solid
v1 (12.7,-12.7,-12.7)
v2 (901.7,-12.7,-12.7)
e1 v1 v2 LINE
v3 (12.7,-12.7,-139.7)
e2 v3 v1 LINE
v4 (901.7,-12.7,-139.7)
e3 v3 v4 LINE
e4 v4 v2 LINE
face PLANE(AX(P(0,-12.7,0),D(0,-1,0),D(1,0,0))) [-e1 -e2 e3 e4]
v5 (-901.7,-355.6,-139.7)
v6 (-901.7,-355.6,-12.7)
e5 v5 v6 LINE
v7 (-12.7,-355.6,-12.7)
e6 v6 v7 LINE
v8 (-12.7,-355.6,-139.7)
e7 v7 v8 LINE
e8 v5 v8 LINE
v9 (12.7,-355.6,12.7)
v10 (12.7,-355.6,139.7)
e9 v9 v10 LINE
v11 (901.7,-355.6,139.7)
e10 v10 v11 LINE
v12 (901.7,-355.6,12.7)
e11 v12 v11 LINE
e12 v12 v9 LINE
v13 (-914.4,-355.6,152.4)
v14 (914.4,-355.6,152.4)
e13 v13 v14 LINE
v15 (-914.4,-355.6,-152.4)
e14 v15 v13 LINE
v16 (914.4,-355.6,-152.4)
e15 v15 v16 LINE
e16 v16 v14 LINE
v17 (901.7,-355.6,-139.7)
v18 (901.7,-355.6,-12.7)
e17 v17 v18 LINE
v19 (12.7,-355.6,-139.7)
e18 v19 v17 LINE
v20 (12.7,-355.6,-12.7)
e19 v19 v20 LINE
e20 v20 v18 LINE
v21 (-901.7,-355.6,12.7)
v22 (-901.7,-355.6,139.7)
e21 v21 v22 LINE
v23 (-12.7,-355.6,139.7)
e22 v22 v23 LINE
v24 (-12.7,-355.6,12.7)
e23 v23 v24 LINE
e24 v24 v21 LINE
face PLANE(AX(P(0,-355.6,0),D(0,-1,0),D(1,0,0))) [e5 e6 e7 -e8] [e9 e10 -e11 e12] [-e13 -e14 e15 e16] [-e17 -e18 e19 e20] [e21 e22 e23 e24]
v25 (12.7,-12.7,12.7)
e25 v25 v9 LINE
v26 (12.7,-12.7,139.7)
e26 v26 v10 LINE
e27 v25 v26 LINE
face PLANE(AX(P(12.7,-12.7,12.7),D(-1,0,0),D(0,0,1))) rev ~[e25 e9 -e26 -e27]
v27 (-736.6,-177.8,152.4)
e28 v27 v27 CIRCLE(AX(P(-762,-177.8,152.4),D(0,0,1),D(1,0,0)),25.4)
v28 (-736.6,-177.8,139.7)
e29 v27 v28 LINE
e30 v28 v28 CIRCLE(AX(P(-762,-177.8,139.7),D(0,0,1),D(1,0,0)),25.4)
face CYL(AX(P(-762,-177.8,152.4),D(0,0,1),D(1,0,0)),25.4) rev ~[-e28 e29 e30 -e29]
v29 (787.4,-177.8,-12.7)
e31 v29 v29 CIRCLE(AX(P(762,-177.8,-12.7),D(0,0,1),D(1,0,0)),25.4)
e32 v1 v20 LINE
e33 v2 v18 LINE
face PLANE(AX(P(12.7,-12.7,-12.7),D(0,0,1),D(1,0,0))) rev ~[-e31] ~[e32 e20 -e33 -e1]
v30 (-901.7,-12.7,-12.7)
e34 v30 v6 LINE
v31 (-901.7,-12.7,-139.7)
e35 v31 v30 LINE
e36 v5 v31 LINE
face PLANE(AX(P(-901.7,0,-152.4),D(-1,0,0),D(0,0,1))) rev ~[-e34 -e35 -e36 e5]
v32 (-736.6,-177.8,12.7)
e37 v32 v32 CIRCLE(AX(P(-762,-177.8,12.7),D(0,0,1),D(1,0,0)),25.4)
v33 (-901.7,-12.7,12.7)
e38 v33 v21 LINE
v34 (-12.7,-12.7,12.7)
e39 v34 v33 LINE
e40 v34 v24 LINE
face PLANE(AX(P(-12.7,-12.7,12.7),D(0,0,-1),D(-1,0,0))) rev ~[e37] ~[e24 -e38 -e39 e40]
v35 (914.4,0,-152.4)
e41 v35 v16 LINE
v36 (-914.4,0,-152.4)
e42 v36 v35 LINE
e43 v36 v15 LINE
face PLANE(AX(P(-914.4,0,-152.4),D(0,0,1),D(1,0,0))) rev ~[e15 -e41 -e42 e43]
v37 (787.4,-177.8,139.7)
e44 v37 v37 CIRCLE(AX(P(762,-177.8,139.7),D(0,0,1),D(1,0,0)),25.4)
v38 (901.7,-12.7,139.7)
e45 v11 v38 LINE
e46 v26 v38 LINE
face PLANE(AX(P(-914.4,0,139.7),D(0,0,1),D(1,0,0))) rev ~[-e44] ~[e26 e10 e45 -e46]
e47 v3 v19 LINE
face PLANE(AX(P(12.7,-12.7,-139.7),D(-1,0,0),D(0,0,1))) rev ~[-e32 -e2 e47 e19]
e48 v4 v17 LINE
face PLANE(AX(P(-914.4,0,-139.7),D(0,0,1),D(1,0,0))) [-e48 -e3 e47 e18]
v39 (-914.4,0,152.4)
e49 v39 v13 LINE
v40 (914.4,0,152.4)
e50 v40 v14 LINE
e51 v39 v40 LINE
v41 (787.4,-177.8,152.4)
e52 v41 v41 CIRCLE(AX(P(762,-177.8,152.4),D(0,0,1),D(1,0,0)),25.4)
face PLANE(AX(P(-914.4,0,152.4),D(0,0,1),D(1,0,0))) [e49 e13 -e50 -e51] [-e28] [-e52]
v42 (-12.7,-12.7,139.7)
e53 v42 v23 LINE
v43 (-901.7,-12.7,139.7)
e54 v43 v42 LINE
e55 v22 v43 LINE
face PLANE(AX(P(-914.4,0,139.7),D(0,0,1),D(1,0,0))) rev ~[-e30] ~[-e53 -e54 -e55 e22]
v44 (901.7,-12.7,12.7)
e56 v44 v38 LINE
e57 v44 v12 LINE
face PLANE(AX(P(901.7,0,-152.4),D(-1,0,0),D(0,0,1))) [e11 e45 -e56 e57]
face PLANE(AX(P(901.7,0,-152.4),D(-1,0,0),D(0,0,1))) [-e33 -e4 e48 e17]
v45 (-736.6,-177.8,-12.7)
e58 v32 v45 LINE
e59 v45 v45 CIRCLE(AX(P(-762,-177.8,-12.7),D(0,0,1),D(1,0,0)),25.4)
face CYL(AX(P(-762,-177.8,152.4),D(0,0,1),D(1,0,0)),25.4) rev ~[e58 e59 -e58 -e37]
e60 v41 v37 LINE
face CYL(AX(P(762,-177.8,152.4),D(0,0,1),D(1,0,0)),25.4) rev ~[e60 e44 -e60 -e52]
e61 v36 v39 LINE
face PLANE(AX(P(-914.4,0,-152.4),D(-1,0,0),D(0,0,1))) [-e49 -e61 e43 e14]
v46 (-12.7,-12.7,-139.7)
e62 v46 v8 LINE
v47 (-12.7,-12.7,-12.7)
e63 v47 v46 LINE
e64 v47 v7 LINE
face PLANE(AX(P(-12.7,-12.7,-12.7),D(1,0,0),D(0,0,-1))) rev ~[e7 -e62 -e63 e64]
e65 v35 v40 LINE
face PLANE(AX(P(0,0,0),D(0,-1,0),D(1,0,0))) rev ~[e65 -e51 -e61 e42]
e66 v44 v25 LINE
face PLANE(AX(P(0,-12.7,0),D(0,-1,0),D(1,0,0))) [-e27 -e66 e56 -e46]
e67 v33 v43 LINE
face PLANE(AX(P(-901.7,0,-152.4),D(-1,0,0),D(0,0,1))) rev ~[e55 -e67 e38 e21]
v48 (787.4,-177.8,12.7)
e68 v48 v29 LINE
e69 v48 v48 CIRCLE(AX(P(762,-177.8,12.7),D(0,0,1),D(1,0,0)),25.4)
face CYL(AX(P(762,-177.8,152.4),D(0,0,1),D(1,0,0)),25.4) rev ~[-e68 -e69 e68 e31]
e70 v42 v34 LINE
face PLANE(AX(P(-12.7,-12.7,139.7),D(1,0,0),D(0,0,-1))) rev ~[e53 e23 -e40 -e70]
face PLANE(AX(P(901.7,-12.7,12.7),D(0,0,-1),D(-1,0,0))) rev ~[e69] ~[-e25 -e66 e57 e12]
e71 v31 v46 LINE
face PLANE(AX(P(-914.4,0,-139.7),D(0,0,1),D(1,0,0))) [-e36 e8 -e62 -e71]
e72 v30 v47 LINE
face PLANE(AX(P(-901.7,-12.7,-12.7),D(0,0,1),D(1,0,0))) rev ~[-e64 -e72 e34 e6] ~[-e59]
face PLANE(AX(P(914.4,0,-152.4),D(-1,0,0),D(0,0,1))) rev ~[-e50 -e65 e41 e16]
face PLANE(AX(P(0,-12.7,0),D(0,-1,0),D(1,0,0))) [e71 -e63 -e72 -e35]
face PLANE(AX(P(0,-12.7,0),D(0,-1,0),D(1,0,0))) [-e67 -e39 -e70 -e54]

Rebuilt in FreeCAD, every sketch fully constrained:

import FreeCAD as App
import Part
import Sketcher

V = App.Vector
Q = App.Units.Quantity


def faces_at(feature, points):
    """Names of the faces that lie closest to the given points."""
    faces = feature.Shape.Faces
    near = lambda p: min(range(len(faces)), key=lambda i: faces[i].distToShape(Part.Vertex(*p))[0])
    return sorted({f"Face{near(p) + 1}" for p in points})

doc = App.newDocument("Part")
params = doc.addObject("Spreadsheet::Sheet", "Params")
for row, (alias, value) in enumerate([
    ("sketch1_width", "72 in"),
    ("sketch1_height", "12 in"),
    ("pad1_length", "14 in"),
    ("thickness_wall", "0.5 in"),
    ("sketch2_width", "1 in"),
    ("sketch2_width2", "35 in"),
    ("sketch2_height", "5 in"),
    ("pad2_length", "13.5 in"),
    ("sketch3_diameter", "2 in"),
    ("pocket1_length", "7.5 in"),
], start=1):
    params.set(f"A{row}", alias)
    params.set(f"B{row}", "=" + value)
    params.setAlias(f"B{row}", alias)

body = doc.addObject("PartDesign::Body", "Body")

# Sketch on XZ plane
sketch1 = body.newObject("Sketcher::SketchObject", "Sketch")
sketch1.AttachmentSupport = (doc.getObject("XZ_Plane"), [""])
sketch1.MapMode = "FlatFace"
sketch1.addGeometry([
    Part.LineSegment(V(-914, 152, 0), V(-914, -152, 0)),
    Part.LineSegment(V(-914, -152, 0), V(914, -152, 0)),
    Part.LineSegment(V(914, -152, 0), V(914, 152, 0)),
    Part.LineSegment(V(914, 152, 0), V(-914, 152, 0)),
], False)
sketch1.addConstraint([
    Sketcher.Constraint("Coincident", 0, 2, 1, 1),
    Sketcher.Constraint("Coincident", 1, 2, 2, 1),
    Sketcher.Constraint("Coincident", 2, 2, 3, 1),
    Sketcher.Constraint("Coincident", 3, 2, 0, 1),
    Sketcher.Constraint("Vertical", 0),
    Sketcher.Constraint("Horizontal", 1),
    Sketcher.Constraint("Vertical", 2),
    Sketcher.Constraint("Horizontal", 3),
    Sketcher.Constraint("Symmetric", 0, 2, 2, 2, -1, 1),
    Sketcher.Constraint("DistanceX", 1, 1, 1, 2, Q("72 in")),
    Sketcher.Constraint("DistanceY", 0, 2, 0, 1, Q("12 in")),
])
sketch1.setExpression("Constraints[9]", "Params.sketch1_width")
sketch1.setExpression("Constraints[10]", "Params.sketch1_height")
pad1 = body.newObject("PartDesign::Pad", "Pad")
pad1.Profile = sketch1
pad1.setExpression("Length", "Params.pad1_length")
doc.recompute()

thickness = body.newObject("PartDesign::Thickness", "Thickness")
thickness.Base = (pad1, faces_at(pad1, [(0, -355.6, 0)]))
thickness.setExpression("Value", "Params.thickness_wall")
thickness.Reversed = True
thickness.Join = "Arc"

# Sketch on XZ plane
sketch2 = body.newObject("Sketcher::SketchObject", "Sketch001")
sketch2.AttachmentSupport = (doc.getObject("XZ_Plane"), [""])
sketch2.MapMode = "FlatFace"
sketch2.AttachmentOffset = App.Placement(V(0, 0, 0.5 * 25.4), App.Rotation())
sketch2.addGeometry([
    Part.LineSegment(V(13, 13, 0), V(13, 140, 0)),  # 0
    Part.LineSegment(V(13, 140, 0), V(-13, 140, 0)),  # 1
    Part.LineSegment(V(-13, 140, 0), V(-13, 13, 0)),  # 2
    Part.LineSegment(V(-13, 13, 0), V(-902, 13, 0)),  # 3
    Part.LineSegment(V(-902, 13, 0), V(-902, -13, 0)),  # 4
    Part.LineSegment(V(-902, -13, 0), V(-13, -13, 0)),  # 5
    Part.LineSegment(V(-13, -13, 0), V(-13, -140, 0)),  # 6
    Part.LineSegment(V(-13, -140, 0), V(13, -140, 0)),  # 7
    Part.LineSegment(V(13, -140, 0), V(13, -13, 0)),  # 8
    Part.LineSegment(V(13, -13, 0), V(902, -13, 0)),  # 9
    Part.LineSegment(V(902, -13, 0), V(902, 13, 0)),  # 10
    Part.LineSegment(V(902, 13, 0), V(13, 13, 0)),  # 11
], False)
sketch2.addConstraint([
    Sketcher.Constraint("Coincident", 0, 2, 1, 1),
    Sketcher.Constraint("Coincident", 1, 2, 2, 1),
    Sketcher.Constraint("Coincident", 2, 2, 3, 1),
    Sketcher.Constraint("Coincident", 3, 2, 4, 1),
    Sketcher.Constraint("Coincident", 4, 2, 5, 1),
    Sketcher.Constraint("Coincident", 5, 2, 6, 1),
    Sketcher.Constraint("Coincident", 6, 2, 7, 1),
    Sketcher.Constraint("Coincident", 7, 2, 8, 1),
    Sketcher.Constraint("Coincident", 8, 2, 9, 1),
    Sketcher.Constraint("Coincident", 9, 2, 10, 1),
    Sketcher.Constraint("Coincident", 10, 2, 11, 1),
    Sketcher.Constraint("Coincident", 11, 2, 0, 1),
    Sketcher.Constraint("Vertical", 0),
    Sketcher.Constraint("Horizontal", 1),
    Sketcher.Constraint("Vertical", 2),
    Sketcher.Constraint("Horizontal", 3),
    Sketcher.Constraint("Vertical", 4),
    Sketcher.Constraint("Horizontal", 5),
    Sketcher.Constraint("Vertical", 6),
    Sketcher.Constraint("Horizontal", 7),
    Sketcher.Constraint("Vertical", 8),
    Sketcher.Constraint("Horizontal", 9),
    Sketcher.Constraint("Vertical", 10),
    Sketcher.Constraint("Horizontal", 11),
    Sketcher.Constraint("Symmetric", 0, 2, 6, 2, -1, 1),
    Sketcher.Constraint("Symmetric", 2, 2, 8, 2, -1, 1),
    Sketcher.Constraint("Symmetric", 4, 2, 10, 2, -1, 1),
    Sketcher.Constraint("Symmetric", 5, 2, 8, 2, -2),
    Sketcher.Constraint("Equal", 7, 4),
    Sketcher.Constraint("DistanceX", 1, 2, 1, 1, Q("1 in")),
    Sketcher.Constraint("DistanceX", 3, 2, 3, 1, Q("35 in")),
    Sketcher.Constraint("DistanceY", 0, 1, 0, 2, Q("5 in")),
])
sketch2.setExpression("Constraints[29]", "Params.sketch2_width")
sketch2.setExpression("Constraints[30]", "Params.sketch2_width2")
sketch2.setExpression("Constraints[31]", "Params.sketch2_height")
pad2 = body.newObject("PartDesign::Pad", "Pad001")
pad2.Profile = sketch2
pad2.setExpression("Length", "Params.pad2_length")

# Sketch on XY plane
sketch3 = body.newObject("Sketcher::SketchObject", "Sketch002")
sketch3.AttachmentSupport = (doc.getObject("XY_Plane"), [""])
sketch3.MapMode = "FlatFace"
sketch3.AttachmentOffset = App.Placement(V(0, 0, 6 * 25.4), App.Rotation())
sketch3.addGeometry([
    Part.Circle(V(-762, -178, 0), V(0, 0, 1), 25),
    Part.Circle(V(762, -178, 0), V(0, 0, 1), 25),
], False)
sketch3.addConstraint([
    Sketcher.Constraint("Equal", 0, 1),
    Sketcher.Constraint("Symmetric", 0, 3, 1, 3, -2),
    Sketcher.Constraint("Diameter", 0, Q("2 in")),
    Sketcher.Constraint("DistanceX", 0, 3, -1, 1, Q("30 in")),
    Sketcher.Constraint("DistanceY", 0, 3, -1, 1, Q("7 in")),
])
sketch3.setExpression("Constraints[2]", "Params.sketch3_diameter")
pocket1 = body.newObject("PartDesign::Pocket", "Pocket")
pocket1.Profile = sketch3
pocket1.setExpression("Length", "Params.pocket1_length")

doc.recompute()
